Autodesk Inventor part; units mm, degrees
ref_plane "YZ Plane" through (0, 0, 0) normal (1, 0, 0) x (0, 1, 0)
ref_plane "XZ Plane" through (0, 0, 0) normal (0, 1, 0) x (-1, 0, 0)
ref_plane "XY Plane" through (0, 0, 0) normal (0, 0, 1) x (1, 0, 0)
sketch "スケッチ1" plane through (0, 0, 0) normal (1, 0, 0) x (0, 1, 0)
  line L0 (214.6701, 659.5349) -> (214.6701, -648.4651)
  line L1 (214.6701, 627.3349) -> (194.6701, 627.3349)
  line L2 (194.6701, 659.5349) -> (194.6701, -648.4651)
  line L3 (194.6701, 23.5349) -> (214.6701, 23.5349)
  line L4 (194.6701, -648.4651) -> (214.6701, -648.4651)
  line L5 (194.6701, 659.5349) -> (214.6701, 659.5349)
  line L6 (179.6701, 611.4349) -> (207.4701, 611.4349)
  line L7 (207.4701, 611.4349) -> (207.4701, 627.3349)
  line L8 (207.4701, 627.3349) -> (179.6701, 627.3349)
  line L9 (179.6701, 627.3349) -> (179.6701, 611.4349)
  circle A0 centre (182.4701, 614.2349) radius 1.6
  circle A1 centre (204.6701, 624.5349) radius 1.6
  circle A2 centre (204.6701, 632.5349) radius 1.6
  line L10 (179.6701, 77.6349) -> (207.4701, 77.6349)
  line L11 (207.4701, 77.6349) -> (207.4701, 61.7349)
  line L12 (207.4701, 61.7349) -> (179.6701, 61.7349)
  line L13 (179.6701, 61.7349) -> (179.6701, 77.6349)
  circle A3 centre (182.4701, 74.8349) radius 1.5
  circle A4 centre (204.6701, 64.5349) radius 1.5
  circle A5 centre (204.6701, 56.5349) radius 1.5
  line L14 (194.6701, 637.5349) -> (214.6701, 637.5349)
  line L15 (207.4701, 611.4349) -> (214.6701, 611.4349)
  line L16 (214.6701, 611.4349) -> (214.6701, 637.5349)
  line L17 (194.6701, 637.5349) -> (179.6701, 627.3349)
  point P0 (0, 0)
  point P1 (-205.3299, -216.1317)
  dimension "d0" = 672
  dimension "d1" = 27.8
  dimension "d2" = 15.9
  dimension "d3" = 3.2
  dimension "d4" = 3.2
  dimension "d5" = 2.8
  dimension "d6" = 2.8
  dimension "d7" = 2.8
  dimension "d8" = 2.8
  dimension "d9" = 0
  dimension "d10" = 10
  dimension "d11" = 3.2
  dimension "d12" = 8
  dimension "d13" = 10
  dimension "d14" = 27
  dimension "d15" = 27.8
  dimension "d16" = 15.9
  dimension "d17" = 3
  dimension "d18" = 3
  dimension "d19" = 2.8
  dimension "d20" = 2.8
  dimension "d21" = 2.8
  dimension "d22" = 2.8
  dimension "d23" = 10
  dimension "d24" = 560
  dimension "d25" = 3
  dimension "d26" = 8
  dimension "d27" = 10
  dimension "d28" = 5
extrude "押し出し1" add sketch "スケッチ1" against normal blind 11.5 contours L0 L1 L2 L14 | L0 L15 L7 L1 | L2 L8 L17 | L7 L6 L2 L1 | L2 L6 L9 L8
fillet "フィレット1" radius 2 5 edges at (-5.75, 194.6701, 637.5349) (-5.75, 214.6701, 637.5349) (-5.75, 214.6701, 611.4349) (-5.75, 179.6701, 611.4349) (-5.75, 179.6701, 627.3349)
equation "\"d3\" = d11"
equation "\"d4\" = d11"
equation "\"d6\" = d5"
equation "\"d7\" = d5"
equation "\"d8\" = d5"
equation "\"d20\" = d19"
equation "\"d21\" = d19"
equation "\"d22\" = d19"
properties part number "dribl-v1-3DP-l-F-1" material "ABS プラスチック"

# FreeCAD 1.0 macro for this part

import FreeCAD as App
import Part
import Sketcher
Q = App.Units.Quantity


def edges_at(feature, points):
    """Names of the edges that pass closest to the given points."""
    edges = feature.Shape.Edges
    near = lambda p: min(range(len(edges)), key=lambda i: edges[i].distToShape(Part.Vertex(*p))[0])
    return sorted({f"Edge{near(p) + 1}" for p in points})


def add_polygon(sketch, points):
    """Adds a closed chain of lines whose ends are joined by coincident constraints."""
    first, n = sketch.GeometryCount, len(points)
    for a, b in zip(points, points[1:] + points[:1]):
        sketch.addGeometry(Part.LineSegment(App.Vector(*a, 0), App.Vector(*b, 0)), False)
    for i in range(n):
        sketch.addConstraint(Sketcher.Constraint("Coincident", first + i, 2, first + (i + 1) % n, 1))

doc = App.newDocument("Part")
body = doc.addObject("PartDesign::Body", "Body")

sketch1 = doc.addObject("Sketcher::SketchObject", "Sketch")
body.addObject(sketch1)
sketch1.AttachmentSupport = (doc.YZ_Plane, [""])
sketch1.MapMode = "FlatFace"
add_polygon(sketch1, [(214.7, 637.5), (194.7, 637.5), (179.7, 627.3), (179.7, 611.4), (214.7, 611.4)])
sketch1.addGeometry(Part.Circle(App.Vector(204.7, 632.5, 0), App.Vector(0, 0, 1), 1.6), False)
sketch1.addGeometry(Part.Circle(App.Vector(204.7, 624.5, 0), App.Vector(0, 0, 1), 1.6), False)
sketch1.addGeometry(Part.Circle(App.Vector(182.5, 614.2, 0), App.Vector(0, 0, 1), 1.6), False)
sketch1.addConstraint([
    Sketcher.Constraint("Horizontal", 0),
    Sketcher.Constraint("Vertical", 2),
    Sketcher.Constraint("Horizontal", 3),
    Sketcher.Constraint("Vertical", 4),
    Sketcher.Constraint("Equal", 5, 6),
    Sketcher.Constraint("Equal", 6, 7),
    Sketcher.Constraint("Vertical", 5, 3, 6, 3),
    Sketcher.Constraint("Diameter", 5, Q("3.2 mm")),
    Sketcher.Constraint("DistanceY", 2, 2, 2, 1, Q("15.9 mm")),
    Sketcher.Constraint("DistanceY", 6, 3, 5, 3, Q("8 mm")),
    Sketcher.Constraint("DistanceX", 0, 2, 5, 3, Q("10 mm")),
    Sketcher.Constraint("DistanceY", 5, 3, 0, 2, Q("5 mm")),
    Sketcher.Constraint("DistanceX", 6, 3, 3, 2, Q("10 mm")),
    Sketcher.Constraint("DistanceX", 1, 2, 7, 3, Q("2.8 mm")),
    Sketcher.Constraint("DistanceY", 6, 3, 1, 2, Q("2.8 mm")),
    Sketcher.Constraint("DistanceY", 2, 2, 7, 3, Q("2.8 mm")),
    Sketcher.Constraint("DistanceX", 3, 1, 3, 2, Q("35 mm")),
    Sketcher.Constraint("DistanceX", -1, 1, 5, 3, Q("204.67 mm")),
    Sketcher.Constraint("DistanceY", -1, 1, 5, 3, Q("632.535 mm")),
])
pad1 = doc.addObject("PartDesign::Pad", "Pad")
body.addObject(pad1)
pad1.Profile = sketch1
pad1.Length = 11.5
pad1.Reversed = True
doc.recompute()

fillet = doc.addObject("PartDesign::Fillet", "Fillet")
body.addObject(fillet)
fillet.Base = (pad1, edges_at(pad1, [
    (-5.75, 194.67, 637.535),
    (-5.75, 214.67, 637.535),
    (-5.75, 214.67, 611.435),
    (-5.75, 179.67, 611.435),
    (-5.75, 179.67, 627.335),
]))
fillet.Radius = 2

doc.recompute()
